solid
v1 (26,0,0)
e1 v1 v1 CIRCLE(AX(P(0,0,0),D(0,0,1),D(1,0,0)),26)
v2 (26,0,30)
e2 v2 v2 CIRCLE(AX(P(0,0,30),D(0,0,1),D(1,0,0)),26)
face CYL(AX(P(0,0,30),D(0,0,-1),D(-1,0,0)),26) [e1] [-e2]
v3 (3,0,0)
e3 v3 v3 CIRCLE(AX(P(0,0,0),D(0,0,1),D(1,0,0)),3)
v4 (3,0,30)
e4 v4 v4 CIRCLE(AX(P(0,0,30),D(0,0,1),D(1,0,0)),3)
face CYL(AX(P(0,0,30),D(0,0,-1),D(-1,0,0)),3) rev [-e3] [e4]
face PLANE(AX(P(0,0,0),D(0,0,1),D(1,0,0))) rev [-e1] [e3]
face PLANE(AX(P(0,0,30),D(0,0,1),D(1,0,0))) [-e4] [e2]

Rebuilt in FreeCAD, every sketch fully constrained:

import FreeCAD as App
import Part
import Sketcher
from FreeCAD import Vector
Q = App.Units.Quantity

doc = App.newDocument("Part")
body = doc.addObject("PartDesign::Body", "Body")

sketch1 = doc.addObject("Sketcher::SketchObject", "Sketch")
body.addObject(sketch1)
sketch1.AttachmentSupport = (doc.XY_Plane, [""])
sketch1.MapMode = "FlatFace"
sketch1.addGeometry(Part.Circle(Vector(0, 0, 0), Vector(0, 0, 1), 26), False)
sketch1.addGeometry(Part.Circle(Vector(0, 0, 0), Vector(0, 0, 1), 3), False)
sketch1.addConstraint(Sketcher.Constraint("Coincident", 0, 3, -1, 1))
sketch1.addConstraint(Sketcher.Constraint("Coincident", 1, 3, -1, 1))
sketch1.addConstraint(Sketcher.Constraint("Diameter", 0, Q("52 mm")))
sketch1.addConstraint(Sketcher.Constraint("Diameter", 1, Q("6 mm")))
pad1 = doc.addObject("PartDesign::Pad", "Pad")
body.addObject(pad1)
pad1.Profile = sketch1
pad1.Length = 30

doc.recompute()
